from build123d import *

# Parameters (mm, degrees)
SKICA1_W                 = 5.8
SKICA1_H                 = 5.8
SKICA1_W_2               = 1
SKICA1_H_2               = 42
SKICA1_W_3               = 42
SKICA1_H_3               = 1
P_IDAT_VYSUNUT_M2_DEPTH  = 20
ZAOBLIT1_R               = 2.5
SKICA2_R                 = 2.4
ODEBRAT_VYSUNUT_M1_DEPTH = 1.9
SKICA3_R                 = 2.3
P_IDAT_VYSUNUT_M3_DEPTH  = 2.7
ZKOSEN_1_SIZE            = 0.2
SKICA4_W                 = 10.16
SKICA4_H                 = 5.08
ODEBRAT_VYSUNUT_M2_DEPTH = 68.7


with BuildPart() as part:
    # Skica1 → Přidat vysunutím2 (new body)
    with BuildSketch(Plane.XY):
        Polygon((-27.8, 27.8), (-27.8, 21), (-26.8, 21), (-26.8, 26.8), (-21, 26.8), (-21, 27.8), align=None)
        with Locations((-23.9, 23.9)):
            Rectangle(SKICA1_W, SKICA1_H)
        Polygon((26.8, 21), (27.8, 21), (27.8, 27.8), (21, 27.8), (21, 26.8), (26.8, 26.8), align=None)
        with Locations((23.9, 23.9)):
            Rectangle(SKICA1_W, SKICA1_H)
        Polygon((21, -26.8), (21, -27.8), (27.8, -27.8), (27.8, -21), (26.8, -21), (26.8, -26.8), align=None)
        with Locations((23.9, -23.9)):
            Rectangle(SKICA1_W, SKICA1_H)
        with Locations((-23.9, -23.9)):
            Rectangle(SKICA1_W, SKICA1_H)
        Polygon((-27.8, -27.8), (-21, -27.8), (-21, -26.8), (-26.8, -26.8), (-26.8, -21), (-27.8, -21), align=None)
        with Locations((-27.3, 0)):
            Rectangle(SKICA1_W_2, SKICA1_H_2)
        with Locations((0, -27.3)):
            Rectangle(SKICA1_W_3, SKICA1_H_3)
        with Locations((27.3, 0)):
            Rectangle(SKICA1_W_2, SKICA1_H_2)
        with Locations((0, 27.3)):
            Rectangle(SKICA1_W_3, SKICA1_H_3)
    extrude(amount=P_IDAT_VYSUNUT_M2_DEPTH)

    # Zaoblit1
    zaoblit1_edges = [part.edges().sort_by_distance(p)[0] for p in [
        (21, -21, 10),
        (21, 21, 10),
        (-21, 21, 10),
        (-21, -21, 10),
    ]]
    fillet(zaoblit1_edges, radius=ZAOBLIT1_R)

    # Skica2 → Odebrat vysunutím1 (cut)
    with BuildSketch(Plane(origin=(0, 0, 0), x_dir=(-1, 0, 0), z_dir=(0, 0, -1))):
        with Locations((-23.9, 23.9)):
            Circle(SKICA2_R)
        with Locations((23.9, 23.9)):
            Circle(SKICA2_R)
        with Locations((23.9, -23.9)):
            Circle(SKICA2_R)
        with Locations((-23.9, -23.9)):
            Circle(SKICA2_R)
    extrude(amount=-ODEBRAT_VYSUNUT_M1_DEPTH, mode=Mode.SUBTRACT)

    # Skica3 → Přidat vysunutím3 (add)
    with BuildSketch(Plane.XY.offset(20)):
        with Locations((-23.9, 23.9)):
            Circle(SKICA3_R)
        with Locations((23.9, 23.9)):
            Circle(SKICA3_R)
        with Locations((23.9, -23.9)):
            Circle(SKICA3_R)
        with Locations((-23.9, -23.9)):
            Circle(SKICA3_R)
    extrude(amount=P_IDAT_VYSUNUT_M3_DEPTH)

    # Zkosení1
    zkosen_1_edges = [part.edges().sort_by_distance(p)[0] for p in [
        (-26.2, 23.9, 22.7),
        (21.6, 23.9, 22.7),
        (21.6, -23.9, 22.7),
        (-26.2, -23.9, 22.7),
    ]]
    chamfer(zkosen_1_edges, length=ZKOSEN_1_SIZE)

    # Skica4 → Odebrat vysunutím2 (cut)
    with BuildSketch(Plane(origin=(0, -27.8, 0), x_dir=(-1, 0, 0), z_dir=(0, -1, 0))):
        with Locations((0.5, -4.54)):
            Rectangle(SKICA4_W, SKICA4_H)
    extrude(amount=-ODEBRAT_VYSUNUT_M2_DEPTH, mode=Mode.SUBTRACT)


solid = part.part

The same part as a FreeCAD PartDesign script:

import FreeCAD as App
import Part
import Sketcher


def edges_at(feature, points):
    """Names of the edges that pass closest to the given points."""
    edges = feature.Shape.Edges
    near = lambda p: min(range(len(edges)), key=lambda i: edges[i].distToShape(Part.Vertex(*p))[0])
    return sorted({f"Edge{near(p) + 1}" for p in points})

doc = App.newDocument("Part")
body = doc.addObject("PartDesign::Body", "Body")

# Sketch on XY plane
sketch1 = doc.addObject("Sketcher::SketchObject", "Sketch")
body.addObject(sketch1)
sketch1.AttachmentSupport = (doc.XY_Plane, [""])
sketch1.MapMode = "FlatFace"
sketch1.addGeometry([
    Part.LineSegment(App.Vector(-28, 28, 0), App.Vector(-28, -28, 0)),  # 0
    Part.LineSegment(App.Vector(-28, -28, 0), App.Vector(28, -28, 0)),  # 1
    Part.LineSegment(App.Vector(28, -28, 0), App.Vector(28, 28, 0)),  # 2
    Part.LineSegment(App.Vector(28, 28, 0), App.Vector(-28, 28, 0)),  # 3
    Part.LineSegment(App.Vector(21, 27, 0), App.Vector(21, 21, 0)),  # 4
    Part.LineSegment(App.Vector(21, 21, 0), App.Vector(27, 21, 0)),  # 5
    Part.LineSegment(App.Vector(27, 21, 0), App.Vector(27, -21, 0)),  # 6
    Part.LineSegment(App.Vector(27, -21, 0), App.Vector(21, -21, 0)),  # 7
    Part.LineSegment(App.Vector(21, -21, 0), App.Vector(21, -27, 0)),  # 8
    Part.LineSegment(App.Vector(21, -27, 0), App.Vector(-21, -27, 0)),  # 9
    Part.LineSegment(App.Vector(-21, -27, 0), App.Vector(-21, -21, 0)),  # 10
    Part.LineSegment(App.Vector(-21, -21, 0), App.Vector(-27, -21, 0)),  # 11
    Part.LineSegment(App.Vector(-27, -21, 0), App.Vector(-27, 21, 0)),  # 12
    Part.LineSegment(App.Vector(-27, 21, 0), App.Vector(-21, 21, 0)),  # 13
    Part.LineSegment(App.Vector(-21, 21, 0), App.Vector(-21, 27, 0)),  # 14
    Part.LineSegment(App.Vector(-21, 27, 0), App.Vector(21, 27, 0)),  # 15
], False)
sketch1.addConstraint([
    Sketcher.Constraint("Coincident", 0, 2, 1, 1),
    Sketcher.Constraint("Coincident", 1, 2, 2, 1),
    Sketcher.Constraint("Coincident", 2, 2, 3, 1),
    Sketcher.Constraint("Coincident", 3, 2, 0, 1),
    Sketcher.Constraint("Coincident", 4, 2, 5, 1),
    Sketcher.Constraint("Coincident", 5, 2, 6, 1),
    Sketcher.Constraint("Coincident", 6, 2, 7, 1),
    Sketcher.Constraint("Coincident", 7, 2, 8, 1),
    Sketcher.Constraint("Coincident", 8, 2, 9, 1),
    Sketcher.Constraint("Coincident", 9, 2, 10, 1),
    Sketcher.Constraint("Coincident", 10, 2, 11, 1),
    Sketcher.Constraint("Coincident", 11, 2, 12, 1),
    Sketcher.Constraint("Coincident", 12, 2, 13, 1),
    Sketcher.Constraint("Coincident", 13, 2, 14, 1),
    Sketcher.Constraint("Coincident", 14, 2, 15, 1),
    Sketcher.Constraint("Coincident", 15, 2, 4, 1),
    Sketcher.Constraint("Vertical", 0),
    Sketcher.Constraint("Horizontal", 1),
    Sketcher.Constraint("Vertical", 2),
    Sketcher.Constraint("Horizontal", 3),
    Sketcher.Constraint("Vertical", 4),
    Sketcher.Constraint("Horizontal", 5),
    Sketcher.Constraint("Vertical", 6),
    Sketcher.Constraint("Horizontal", 7),
    Sketcher.Constraint("Vertical", 8),
    Sketcher.Constraint("Horizontal", 9),
    Sketcher.Constraint("Vertical", 10),
    Sketcher.Constraint("Horizontal", 11),
    Sketcher.Constraint("Vertical", 12),
    Sketcher.Constraint("Horizontal", 13),
    Sketcher.Constraint("Vertical", 14),
    Sketcher.Constraint("Horizontal", 15),
    Sketcher.Constraint("Symmetric", 0, 2, 2, 2, -1, 1),
    Sketcher.Constraint("Symmetric", 4, 2, 10, 2, -1, 1),
    Sketcher.Constraint("Symmetric", 6, 2, 12, 2, -1, 1),
    Sketcher.Constraint("Symmetric", 8, 2, 14, 2, -1, 1),
    Sketcher.Constraint("Symmetric", 7, 2, 10, 2, -2),
    Sketcher.Constraint("Equal", 3, 0),
    Sketcher.Constraint("Equal", 13, 4),
    Sketcher.Constraint("Equal", 15, 6),
    Sketcher.Constraint("DistanceX", 9, 2, 9, 1, 42.0),
    Sketcher.Constraint("DistanceX", 1, 1, 1, 2, 55.6),
    Sketcher.Constraint("DistanceX", 5, 1, 5, 2, 5.8),
])
pad1 = doc.addObject("PartDesign::Pad", "Pad")
body.addObject(pad1)
pad1.Profile = sketch1
pad1.Length = 20
doc.recompute()

fillet = doc.addObject("PartDesign::Fillet", "Fillet")
body.addObject(fillet)
fillet.Base = (pad1, edges_at(pad1, [
    (21, -21, 10),
    (21, 21, 10),
    (-21, 21, 10),
    (-21, -21, 10),
]))
fillet.Radius = 2.5

# Sketch on XY plane
sketch2 = doc.addObject("Sketcher::SketchObject", "Sketch001")
body.addObject(sketch2)
sketch2.AttachmentSupport = (doc.XY_Plane, [""])
sketch2.MapMode = "FlatFace"
sketch2.addGeometry([
    Part.Circle(App.Vector(23.9, 23.9, 0), App.Vector(0, 0, 1), 2.4),
    Part.Circle(App.Vector(-23.9, 23.9, 0), App.Vector(0, 0, 1), 2.4),
    Part.Circle(App.Vector(-23.9, -23.9, 0), App.Vector(0, 0, 1), 2.4),
    Part.Circle(App.Vector(23.9, -23.9, 0), App.Vector(0, 0, 1), 2.4),
], False)
sketch2.addConstraint([
    Sketcher.Constraint("Equal", 0, 1),
    Sketcher.Constraint("Equal", 1, 2),
    Sketcher.Constraint("Equal", 2, 3),
    Sketcher.Constraint("Symmetric", 0, 3, 2, 3, -1, 1),
    Sketcher.Constraint("Symmetric", 1, 3, 3, 3, -1, 1),
    Sketcher.Constraint("Symmetric", 0, 3, 1, 3, -2),
    Sketcher.Constraint("Diameter", 0, 4.8),
    Sketcher.Constraint("DistanceX", -1, 1, 0, 3, 23.9),
    Sketcher.Constraint("DistanceY", -1, 1, 0, 3, 23.9),
])
pocket1 = doc.addObject("PartDesign::Pocket", "Pocket")
body.addObject(pocket1)
pocket1.Profile = sketch2
pocket1.Length = 1.9
pocket1.Reversed = True

# Sketch on XY plane
sketch3 = doc.addObject("Sketcher::SketchObject", "Sketch002")
body.addObject(sketch3)
sketch3.AttachmentSupport = (doc.XY_Plane, [""])
sketch3.MapMode = "FlatFace"
sketch3.AttachmentOffset = App.Placement(App.Vector(0, 0, 20), App.Rotation())
sketch3.addGeometry([
    Part.Circle(App.Vector(-23.9, 23.9, 0), App.Vector(0, 0, 1), 2.3),
    Part.Circle(App.Vector(23.9, 23.9, 0), App.Vector(0, 0, 1), 2.3),
    Part.Circle(App.Vector(23.9, -23.9, 0), App.Vector(0, 0, 1), 2.3),
    Part.Circle(App.Vector(-23.9, -23.9, 0), App.Vector(0, 0, 1), 2.3),
], False)
sketch3.addConstraint([
    Sketcher.Constraint("Equal", 0, 1),
    Sketcher.Constraint("Equal", 1, 2),
    Sketcher.Constraint("Equal", 2, 3),
    Sketcher.Constraint("Symmetric", 0, 3, 2, 3, -1, 1),
    Sketcher.Constraint("Symmetric", 1, 3, 3, 3, -1, 1),
    Sketcher.Constraint("Symmetric", 0, 3, 1, 3, -2),
    Sketcher.Constraint("Diameter", 0, 4.6),
    Sketcher.Constraint("DistanceX", 0, 3, -1, 1, 23.9),
    Sketcher.Constraint("DistanceY", -1, 1, 0, 3, 23.9),
])
pad2 = doc.addObject("PartDesign::Pad", "Pad001")
body.addObject(pad2)
pad2.Profile = sketch3
pad2.Length = 2.7
doc.recompute()

chamfer = doc.addObject("PartDesign::Chamfer", "Chamfer")
body.addObject(chamfer)
chamfer.Base = (pad2, edges_at(pad2, [
    (-26.2, 23.9, 22.7),
    (21.6, 23.9, 22.7),
    (21.6, -23.9, 22.7),
    (-26.2, -23.9, 22.7),
]))
chamfer.Size = 0.2

# Sketch on XZ plane
sketch4 = doc.addObject("Sketcher::SketchObject", "Sketch003")
body.addObject(sketch4)
sketch4.AttachmentSupport = (doc.XZ_Plane, [""])
sketch4.MapMode = "FlatFace"
sketch4.AttachmentOffset = App.Placement(App.Vector(0, 0, 27.8), App.Rotation())
sketch4.addGeometry([
    Part.LineSegment(App.Vector(5, 2, 0), App.Vector(5, 7, 0)),
    Part.LineSegment(App.Vector(5, 7, 0), App.Vector(-6, 7, 0)),
    Part.LineSegment(App.Vector(-6, 7, 0), App.Vector(-6, 2, 0)),
    Part.LineSegment(App.Vector(-6, 2, 0), App.Vector(5, 2, 0)),
], False)
sketch4.addConstraint([
    Sketcher.Constraint("Coincident", 0, 2, 1, 1),
    Sketcher.Constraint("Coincident", 1, 2, 2, 1),
    Sketcher.Constraint("Coincident", 2, 2, 3, 1),
    Sketcher.Constraint("Coincident", 3, 2, 0, 1),
    Sketcher.Constraint("Vertical", 0),
    Sketcher.Constraint("Horizontal", 1),
    Sketcher.Constraint("Vertical", 2),
    Sketcher.Constraint("Horizontal", 3),
    Sketcher.Constraint("DistanceY", -1, 1, 2, 2, 2.0),
    Sketcher.Constraint("DistanceX", 1, 2, 1, 1, 10.16),
    Sketcher.Constraint("DistanceY", 0, 1, 0, 2, 5.08),
    Sketcher.Constraint("DistanceX", -1, 1, 0, 2, 4.58),
])
pocket2 = doc.addObject("PartDesign::Pocket", "Pocket001")
body.addObject(pocket2)
pocket2.Profile = sketch4
pocket2.Length = 68.7

doc.recompute()
